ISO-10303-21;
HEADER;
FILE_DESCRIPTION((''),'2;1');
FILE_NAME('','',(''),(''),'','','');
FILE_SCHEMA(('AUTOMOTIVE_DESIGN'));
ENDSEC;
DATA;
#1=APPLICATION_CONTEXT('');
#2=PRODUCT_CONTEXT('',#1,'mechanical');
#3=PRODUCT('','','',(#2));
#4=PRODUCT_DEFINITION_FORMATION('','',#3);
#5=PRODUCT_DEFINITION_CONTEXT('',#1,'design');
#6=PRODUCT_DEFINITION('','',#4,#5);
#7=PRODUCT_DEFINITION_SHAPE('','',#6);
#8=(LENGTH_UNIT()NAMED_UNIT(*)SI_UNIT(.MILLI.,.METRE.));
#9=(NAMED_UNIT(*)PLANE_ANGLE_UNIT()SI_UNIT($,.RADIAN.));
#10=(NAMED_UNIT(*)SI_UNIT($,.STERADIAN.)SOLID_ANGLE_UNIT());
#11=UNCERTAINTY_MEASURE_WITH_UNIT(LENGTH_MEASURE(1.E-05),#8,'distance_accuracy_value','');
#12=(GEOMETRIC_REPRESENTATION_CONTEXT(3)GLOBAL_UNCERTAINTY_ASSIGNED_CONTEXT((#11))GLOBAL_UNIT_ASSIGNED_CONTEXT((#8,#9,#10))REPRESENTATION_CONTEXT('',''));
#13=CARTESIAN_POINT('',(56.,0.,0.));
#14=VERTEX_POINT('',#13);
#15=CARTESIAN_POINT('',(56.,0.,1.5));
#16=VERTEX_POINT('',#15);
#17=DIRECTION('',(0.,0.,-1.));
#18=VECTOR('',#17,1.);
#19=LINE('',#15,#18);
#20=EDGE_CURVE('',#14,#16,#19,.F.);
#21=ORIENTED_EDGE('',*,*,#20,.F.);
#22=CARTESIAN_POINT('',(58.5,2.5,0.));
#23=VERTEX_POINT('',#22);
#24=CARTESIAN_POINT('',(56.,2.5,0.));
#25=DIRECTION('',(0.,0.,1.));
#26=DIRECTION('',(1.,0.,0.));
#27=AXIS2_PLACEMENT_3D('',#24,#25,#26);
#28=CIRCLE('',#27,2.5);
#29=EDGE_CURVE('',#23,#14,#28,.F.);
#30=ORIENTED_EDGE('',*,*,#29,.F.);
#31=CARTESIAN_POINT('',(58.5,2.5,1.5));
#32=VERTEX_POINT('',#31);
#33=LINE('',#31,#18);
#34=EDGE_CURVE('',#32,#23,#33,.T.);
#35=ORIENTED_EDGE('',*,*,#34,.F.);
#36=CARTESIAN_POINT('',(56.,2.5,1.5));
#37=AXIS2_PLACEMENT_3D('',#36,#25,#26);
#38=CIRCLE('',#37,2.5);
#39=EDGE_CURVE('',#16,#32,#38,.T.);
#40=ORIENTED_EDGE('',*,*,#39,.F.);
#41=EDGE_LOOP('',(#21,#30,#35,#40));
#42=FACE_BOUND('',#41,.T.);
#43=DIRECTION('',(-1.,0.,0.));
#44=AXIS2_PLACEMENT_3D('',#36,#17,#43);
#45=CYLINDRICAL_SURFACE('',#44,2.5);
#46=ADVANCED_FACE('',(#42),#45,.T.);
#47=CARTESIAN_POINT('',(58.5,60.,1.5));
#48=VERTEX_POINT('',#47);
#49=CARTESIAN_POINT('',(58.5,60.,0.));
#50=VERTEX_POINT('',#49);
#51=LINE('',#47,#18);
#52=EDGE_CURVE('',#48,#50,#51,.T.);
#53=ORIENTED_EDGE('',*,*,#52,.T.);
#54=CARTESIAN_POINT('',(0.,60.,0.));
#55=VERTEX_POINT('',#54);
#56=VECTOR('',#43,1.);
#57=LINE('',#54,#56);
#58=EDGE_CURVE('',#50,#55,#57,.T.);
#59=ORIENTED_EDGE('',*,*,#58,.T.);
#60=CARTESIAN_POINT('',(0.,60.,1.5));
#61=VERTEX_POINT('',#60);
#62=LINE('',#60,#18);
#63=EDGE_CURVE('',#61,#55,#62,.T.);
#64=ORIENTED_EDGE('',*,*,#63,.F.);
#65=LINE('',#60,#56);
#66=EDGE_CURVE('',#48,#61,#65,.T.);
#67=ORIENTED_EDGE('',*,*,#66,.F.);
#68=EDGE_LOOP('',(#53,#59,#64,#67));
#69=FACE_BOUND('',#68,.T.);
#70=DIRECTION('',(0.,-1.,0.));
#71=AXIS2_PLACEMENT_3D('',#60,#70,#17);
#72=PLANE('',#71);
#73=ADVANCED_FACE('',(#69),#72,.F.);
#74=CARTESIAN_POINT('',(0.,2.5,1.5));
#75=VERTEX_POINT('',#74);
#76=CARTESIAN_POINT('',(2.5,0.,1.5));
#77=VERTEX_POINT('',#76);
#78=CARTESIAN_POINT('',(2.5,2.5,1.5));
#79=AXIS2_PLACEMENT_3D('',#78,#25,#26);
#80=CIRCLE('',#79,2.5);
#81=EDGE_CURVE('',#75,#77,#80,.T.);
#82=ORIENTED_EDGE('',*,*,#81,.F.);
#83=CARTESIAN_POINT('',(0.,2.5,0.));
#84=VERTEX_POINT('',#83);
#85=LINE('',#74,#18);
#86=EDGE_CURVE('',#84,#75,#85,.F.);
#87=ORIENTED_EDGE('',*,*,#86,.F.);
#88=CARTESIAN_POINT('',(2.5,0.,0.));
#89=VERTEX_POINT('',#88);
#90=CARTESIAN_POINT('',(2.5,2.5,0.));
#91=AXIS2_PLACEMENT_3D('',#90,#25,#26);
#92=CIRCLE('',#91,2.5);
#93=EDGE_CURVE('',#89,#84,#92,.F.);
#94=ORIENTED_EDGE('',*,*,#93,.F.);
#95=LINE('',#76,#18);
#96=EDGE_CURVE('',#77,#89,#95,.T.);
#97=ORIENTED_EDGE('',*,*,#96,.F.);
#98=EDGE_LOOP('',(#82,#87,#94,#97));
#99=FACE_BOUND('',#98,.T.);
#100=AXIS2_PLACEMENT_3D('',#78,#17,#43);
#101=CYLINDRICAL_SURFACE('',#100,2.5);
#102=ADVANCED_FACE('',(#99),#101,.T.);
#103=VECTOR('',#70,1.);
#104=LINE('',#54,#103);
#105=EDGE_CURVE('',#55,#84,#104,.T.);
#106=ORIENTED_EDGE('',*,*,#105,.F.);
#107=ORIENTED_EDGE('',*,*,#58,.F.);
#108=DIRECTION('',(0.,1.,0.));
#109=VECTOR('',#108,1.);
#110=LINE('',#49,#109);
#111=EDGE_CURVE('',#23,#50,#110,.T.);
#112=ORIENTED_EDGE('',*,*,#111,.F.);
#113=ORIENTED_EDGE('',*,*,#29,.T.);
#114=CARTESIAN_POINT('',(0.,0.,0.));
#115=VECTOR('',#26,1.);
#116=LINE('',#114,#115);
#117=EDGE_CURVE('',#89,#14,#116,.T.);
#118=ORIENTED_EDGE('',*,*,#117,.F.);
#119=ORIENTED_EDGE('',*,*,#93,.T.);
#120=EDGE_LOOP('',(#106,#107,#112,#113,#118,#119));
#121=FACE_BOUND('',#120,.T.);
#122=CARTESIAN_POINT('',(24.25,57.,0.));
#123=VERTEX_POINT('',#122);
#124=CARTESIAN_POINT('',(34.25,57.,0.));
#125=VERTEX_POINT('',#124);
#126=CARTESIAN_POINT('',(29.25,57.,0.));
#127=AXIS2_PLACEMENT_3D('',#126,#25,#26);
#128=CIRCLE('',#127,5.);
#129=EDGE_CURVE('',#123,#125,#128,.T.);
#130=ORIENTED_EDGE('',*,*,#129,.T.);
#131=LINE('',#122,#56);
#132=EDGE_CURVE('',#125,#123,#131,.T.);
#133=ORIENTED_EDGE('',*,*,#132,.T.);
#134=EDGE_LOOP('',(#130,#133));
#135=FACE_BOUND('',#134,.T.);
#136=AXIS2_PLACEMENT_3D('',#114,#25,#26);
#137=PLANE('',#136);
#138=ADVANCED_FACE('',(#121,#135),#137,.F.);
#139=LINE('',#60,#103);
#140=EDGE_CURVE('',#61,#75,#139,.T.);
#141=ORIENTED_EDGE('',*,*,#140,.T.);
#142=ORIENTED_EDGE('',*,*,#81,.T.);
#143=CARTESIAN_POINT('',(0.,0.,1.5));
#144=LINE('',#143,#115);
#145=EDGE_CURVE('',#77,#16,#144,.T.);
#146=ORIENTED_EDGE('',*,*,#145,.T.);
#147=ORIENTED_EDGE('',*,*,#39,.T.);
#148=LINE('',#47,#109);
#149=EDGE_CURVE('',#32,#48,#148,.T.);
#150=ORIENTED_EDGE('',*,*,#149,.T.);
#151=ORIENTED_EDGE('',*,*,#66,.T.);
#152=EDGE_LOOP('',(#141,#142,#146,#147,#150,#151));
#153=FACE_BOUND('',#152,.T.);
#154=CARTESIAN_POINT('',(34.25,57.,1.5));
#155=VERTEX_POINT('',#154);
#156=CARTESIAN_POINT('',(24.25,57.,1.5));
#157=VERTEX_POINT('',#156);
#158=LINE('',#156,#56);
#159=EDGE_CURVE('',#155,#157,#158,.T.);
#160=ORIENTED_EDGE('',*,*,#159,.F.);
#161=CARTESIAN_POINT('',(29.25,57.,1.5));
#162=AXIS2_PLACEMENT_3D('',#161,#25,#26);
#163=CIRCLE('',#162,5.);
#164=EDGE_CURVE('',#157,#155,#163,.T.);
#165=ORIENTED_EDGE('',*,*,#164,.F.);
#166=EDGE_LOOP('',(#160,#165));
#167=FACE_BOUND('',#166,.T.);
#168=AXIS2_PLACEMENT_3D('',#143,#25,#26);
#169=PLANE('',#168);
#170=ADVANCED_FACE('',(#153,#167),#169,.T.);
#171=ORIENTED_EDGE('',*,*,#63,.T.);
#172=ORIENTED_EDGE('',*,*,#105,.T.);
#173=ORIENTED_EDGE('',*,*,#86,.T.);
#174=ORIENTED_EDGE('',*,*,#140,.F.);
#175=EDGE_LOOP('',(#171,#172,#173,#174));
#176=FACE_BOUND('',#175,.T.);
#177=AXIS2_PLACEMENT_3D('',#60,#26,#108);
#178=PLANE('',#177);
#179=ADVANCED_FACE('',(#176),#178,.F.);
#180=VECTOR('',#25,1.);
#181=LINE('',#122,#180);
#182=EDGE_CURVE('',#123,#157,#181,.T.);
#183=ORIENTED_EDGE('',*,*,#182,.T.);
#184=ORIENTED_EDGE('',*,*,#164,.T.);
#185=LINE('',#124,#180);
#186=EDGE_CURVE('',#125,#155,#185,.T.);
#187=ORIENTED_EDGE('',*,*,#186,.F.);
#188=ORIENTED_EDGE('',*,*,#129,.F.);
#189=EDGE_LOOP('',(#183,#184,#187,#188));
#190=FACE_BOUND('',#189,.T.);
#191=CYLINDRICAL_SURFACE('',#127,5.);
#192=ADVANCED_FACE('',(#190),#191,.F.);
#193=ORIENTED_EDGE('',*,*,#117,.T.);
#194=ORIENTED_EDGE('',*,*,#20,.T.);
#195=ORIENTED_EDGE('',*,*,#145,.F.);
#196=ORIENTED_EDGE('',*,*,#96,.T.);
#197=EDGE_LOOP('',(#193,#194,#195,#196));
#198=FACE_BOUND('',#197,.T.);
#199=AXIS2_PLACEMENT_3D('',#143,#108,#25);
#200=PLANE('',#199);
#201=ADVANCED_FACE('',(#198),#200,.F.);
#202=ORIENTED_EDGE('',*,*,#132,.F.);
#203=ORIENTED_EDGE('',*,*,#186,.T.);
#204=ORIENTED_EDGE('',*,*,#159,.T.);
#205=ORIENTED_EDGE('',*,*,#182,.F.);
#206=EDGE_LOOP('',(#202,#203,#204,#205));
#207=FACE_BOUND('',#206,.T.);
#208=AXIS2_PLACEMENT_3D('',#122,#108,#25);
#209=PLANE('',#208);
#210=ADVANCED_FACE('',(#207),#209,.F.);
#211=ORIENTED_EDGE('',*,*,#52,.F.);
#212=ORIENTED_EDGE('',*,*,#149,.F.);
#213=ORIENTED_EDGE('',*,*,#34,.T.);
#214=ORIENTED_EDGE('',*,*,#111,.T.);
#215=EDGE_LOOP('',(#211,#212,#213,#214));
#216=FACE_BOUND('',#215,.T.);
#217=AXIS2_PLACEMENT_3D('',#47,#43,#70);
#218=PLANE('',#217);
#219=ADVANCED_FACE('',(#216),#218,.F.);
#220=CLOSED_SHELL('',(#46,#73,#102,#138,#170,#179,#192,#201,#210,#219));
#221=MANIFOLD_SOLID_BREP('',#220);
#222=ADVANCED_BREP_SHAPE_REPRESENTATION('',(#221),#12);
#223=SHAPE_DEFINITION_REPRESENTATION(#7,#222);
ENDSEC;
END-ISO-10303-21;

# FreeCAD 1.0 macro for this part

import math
import FreeCAD as App
import Part
import Sketcher
Q = App.Units.Quantity


def edges_at(feature, points):
    """Names of the edges that pass closest to the given points."""
    edges = feature.Shape.Edges
    near = lambda p: min(range(len(edges)), key=lambda i: edges[i].distToShape(Part.Vertex(*p))[0])
    return sorted({f"Edge{near(p) + 1}" for p in points})


def add_polygon(sketch, points):
    """Adds a closed chain of lines whose ends are joined by coincident constraints."""
    first, n = sketch.GeometryCount, len(points)
    for a, b in zip(points, points[1:] + points[:1]):
        sketch.addGeometry(Part.LineSegment(App.Vector(*a, 0), App.Vector(*b, 0)), False)
    for i in range(n):
        sketch.addConstraint(Sketcher.Constraint("Coincident", first + i, 2, first + (i + 1) % n, 1))

doc = App.newDocument("Part")
body = doc.addObject("PartDesign::Body", "Body")

# Sketch on XY plane
sketch1 = body.newObject("Sketcher::SketchObject", "Sketch")
sketch1.AttachmentSupport = (doc.getObject("XY_Plane"), [""])
sketch1.MapMode = "FlatFace"
add_polygon(sketch1, [(0, 60), (0, 0), (58, 0), (58, 60)])  # lines 0-3
sketch1.addConstraint([
    Sketcher.Constraint("Vertical", 0),
    Sketcher.Constraint("Horizontal", 1),
    Sketcher.Constraint("Vertical", 2),
    Sketcher.Constraint("Horizontal", 3),
    Sketcher.Constraint("Coincident", 0, 2, -1, 1),
    Sketcher.Constraint("DistanceY", 0, 2, 0, 1, Q("60 mm")),
    Sketcher.Constraint("DistanceX", 1, 1, 1, 2, Q("58.5 mm")),
])
pad1 = body.newObject("PartDesign::Pad", "Pad")
pad1.Profile = sketch1
pad1.Length = 1.5
doc.recompute()

fillet = body.newObject("PartDesign::Fillet", "Fillet")
fillet.Base = (pad1, edges_at(pad1, [(58.5, 0, 0.75), (0, 0, 0.75)]))
fillet.Radius = 2.5

# Sketch on XY plane
sketch2 = body.newObject("Sketcher::SketchObject", "Sketch001")
sketch2.AttachmentSupport = (doc.getObject("XY_Plane"), [""])
sketch2.MapMode = "FlatFace"
sketch2.AttachmentOffset = App.Placement(App.Vector(0, 0, 1.5), App.Rotation())
sketch2.addGeometry([
    Part.LineSegment(App.Vector(34, 57, 0), App.Vector(24, 57, 0)),
    Part.ArcOfCircle(Part.Circle(App.Vector(29, 57, 0), App.Vector(0, 0, 1), 5), math.radians(180), math.radians(360)),
], False)
sketch2.addConstraint([
    Sketcher.Constraint("Coincident", 0, 1, 1, 2),
    Sketcher.Constraint("Coincident", 1, 1, 0, 2),
    Sketcher.Constraint("Horizontal", 0),
    Sketcher.Constraint("Horizontal", 1, 3, 0, 1),
    Sketcher.Constraint("Radius", 1, Q("5 mm")),
    Sketcher.Constraint("DistanceY", -1, 1, 1, 3, Q("57 mm")),
    Sketcher.Constraint("DistanceX", -1, 1, 1, 3, Q("29.25 mm")),
])
pocket1 = body.newObject("PartDesign::Pocket", "Pocket")
pocket1.Profile = sketch2
pocket1.Type = "ThroughAll"

doc.recompute()
